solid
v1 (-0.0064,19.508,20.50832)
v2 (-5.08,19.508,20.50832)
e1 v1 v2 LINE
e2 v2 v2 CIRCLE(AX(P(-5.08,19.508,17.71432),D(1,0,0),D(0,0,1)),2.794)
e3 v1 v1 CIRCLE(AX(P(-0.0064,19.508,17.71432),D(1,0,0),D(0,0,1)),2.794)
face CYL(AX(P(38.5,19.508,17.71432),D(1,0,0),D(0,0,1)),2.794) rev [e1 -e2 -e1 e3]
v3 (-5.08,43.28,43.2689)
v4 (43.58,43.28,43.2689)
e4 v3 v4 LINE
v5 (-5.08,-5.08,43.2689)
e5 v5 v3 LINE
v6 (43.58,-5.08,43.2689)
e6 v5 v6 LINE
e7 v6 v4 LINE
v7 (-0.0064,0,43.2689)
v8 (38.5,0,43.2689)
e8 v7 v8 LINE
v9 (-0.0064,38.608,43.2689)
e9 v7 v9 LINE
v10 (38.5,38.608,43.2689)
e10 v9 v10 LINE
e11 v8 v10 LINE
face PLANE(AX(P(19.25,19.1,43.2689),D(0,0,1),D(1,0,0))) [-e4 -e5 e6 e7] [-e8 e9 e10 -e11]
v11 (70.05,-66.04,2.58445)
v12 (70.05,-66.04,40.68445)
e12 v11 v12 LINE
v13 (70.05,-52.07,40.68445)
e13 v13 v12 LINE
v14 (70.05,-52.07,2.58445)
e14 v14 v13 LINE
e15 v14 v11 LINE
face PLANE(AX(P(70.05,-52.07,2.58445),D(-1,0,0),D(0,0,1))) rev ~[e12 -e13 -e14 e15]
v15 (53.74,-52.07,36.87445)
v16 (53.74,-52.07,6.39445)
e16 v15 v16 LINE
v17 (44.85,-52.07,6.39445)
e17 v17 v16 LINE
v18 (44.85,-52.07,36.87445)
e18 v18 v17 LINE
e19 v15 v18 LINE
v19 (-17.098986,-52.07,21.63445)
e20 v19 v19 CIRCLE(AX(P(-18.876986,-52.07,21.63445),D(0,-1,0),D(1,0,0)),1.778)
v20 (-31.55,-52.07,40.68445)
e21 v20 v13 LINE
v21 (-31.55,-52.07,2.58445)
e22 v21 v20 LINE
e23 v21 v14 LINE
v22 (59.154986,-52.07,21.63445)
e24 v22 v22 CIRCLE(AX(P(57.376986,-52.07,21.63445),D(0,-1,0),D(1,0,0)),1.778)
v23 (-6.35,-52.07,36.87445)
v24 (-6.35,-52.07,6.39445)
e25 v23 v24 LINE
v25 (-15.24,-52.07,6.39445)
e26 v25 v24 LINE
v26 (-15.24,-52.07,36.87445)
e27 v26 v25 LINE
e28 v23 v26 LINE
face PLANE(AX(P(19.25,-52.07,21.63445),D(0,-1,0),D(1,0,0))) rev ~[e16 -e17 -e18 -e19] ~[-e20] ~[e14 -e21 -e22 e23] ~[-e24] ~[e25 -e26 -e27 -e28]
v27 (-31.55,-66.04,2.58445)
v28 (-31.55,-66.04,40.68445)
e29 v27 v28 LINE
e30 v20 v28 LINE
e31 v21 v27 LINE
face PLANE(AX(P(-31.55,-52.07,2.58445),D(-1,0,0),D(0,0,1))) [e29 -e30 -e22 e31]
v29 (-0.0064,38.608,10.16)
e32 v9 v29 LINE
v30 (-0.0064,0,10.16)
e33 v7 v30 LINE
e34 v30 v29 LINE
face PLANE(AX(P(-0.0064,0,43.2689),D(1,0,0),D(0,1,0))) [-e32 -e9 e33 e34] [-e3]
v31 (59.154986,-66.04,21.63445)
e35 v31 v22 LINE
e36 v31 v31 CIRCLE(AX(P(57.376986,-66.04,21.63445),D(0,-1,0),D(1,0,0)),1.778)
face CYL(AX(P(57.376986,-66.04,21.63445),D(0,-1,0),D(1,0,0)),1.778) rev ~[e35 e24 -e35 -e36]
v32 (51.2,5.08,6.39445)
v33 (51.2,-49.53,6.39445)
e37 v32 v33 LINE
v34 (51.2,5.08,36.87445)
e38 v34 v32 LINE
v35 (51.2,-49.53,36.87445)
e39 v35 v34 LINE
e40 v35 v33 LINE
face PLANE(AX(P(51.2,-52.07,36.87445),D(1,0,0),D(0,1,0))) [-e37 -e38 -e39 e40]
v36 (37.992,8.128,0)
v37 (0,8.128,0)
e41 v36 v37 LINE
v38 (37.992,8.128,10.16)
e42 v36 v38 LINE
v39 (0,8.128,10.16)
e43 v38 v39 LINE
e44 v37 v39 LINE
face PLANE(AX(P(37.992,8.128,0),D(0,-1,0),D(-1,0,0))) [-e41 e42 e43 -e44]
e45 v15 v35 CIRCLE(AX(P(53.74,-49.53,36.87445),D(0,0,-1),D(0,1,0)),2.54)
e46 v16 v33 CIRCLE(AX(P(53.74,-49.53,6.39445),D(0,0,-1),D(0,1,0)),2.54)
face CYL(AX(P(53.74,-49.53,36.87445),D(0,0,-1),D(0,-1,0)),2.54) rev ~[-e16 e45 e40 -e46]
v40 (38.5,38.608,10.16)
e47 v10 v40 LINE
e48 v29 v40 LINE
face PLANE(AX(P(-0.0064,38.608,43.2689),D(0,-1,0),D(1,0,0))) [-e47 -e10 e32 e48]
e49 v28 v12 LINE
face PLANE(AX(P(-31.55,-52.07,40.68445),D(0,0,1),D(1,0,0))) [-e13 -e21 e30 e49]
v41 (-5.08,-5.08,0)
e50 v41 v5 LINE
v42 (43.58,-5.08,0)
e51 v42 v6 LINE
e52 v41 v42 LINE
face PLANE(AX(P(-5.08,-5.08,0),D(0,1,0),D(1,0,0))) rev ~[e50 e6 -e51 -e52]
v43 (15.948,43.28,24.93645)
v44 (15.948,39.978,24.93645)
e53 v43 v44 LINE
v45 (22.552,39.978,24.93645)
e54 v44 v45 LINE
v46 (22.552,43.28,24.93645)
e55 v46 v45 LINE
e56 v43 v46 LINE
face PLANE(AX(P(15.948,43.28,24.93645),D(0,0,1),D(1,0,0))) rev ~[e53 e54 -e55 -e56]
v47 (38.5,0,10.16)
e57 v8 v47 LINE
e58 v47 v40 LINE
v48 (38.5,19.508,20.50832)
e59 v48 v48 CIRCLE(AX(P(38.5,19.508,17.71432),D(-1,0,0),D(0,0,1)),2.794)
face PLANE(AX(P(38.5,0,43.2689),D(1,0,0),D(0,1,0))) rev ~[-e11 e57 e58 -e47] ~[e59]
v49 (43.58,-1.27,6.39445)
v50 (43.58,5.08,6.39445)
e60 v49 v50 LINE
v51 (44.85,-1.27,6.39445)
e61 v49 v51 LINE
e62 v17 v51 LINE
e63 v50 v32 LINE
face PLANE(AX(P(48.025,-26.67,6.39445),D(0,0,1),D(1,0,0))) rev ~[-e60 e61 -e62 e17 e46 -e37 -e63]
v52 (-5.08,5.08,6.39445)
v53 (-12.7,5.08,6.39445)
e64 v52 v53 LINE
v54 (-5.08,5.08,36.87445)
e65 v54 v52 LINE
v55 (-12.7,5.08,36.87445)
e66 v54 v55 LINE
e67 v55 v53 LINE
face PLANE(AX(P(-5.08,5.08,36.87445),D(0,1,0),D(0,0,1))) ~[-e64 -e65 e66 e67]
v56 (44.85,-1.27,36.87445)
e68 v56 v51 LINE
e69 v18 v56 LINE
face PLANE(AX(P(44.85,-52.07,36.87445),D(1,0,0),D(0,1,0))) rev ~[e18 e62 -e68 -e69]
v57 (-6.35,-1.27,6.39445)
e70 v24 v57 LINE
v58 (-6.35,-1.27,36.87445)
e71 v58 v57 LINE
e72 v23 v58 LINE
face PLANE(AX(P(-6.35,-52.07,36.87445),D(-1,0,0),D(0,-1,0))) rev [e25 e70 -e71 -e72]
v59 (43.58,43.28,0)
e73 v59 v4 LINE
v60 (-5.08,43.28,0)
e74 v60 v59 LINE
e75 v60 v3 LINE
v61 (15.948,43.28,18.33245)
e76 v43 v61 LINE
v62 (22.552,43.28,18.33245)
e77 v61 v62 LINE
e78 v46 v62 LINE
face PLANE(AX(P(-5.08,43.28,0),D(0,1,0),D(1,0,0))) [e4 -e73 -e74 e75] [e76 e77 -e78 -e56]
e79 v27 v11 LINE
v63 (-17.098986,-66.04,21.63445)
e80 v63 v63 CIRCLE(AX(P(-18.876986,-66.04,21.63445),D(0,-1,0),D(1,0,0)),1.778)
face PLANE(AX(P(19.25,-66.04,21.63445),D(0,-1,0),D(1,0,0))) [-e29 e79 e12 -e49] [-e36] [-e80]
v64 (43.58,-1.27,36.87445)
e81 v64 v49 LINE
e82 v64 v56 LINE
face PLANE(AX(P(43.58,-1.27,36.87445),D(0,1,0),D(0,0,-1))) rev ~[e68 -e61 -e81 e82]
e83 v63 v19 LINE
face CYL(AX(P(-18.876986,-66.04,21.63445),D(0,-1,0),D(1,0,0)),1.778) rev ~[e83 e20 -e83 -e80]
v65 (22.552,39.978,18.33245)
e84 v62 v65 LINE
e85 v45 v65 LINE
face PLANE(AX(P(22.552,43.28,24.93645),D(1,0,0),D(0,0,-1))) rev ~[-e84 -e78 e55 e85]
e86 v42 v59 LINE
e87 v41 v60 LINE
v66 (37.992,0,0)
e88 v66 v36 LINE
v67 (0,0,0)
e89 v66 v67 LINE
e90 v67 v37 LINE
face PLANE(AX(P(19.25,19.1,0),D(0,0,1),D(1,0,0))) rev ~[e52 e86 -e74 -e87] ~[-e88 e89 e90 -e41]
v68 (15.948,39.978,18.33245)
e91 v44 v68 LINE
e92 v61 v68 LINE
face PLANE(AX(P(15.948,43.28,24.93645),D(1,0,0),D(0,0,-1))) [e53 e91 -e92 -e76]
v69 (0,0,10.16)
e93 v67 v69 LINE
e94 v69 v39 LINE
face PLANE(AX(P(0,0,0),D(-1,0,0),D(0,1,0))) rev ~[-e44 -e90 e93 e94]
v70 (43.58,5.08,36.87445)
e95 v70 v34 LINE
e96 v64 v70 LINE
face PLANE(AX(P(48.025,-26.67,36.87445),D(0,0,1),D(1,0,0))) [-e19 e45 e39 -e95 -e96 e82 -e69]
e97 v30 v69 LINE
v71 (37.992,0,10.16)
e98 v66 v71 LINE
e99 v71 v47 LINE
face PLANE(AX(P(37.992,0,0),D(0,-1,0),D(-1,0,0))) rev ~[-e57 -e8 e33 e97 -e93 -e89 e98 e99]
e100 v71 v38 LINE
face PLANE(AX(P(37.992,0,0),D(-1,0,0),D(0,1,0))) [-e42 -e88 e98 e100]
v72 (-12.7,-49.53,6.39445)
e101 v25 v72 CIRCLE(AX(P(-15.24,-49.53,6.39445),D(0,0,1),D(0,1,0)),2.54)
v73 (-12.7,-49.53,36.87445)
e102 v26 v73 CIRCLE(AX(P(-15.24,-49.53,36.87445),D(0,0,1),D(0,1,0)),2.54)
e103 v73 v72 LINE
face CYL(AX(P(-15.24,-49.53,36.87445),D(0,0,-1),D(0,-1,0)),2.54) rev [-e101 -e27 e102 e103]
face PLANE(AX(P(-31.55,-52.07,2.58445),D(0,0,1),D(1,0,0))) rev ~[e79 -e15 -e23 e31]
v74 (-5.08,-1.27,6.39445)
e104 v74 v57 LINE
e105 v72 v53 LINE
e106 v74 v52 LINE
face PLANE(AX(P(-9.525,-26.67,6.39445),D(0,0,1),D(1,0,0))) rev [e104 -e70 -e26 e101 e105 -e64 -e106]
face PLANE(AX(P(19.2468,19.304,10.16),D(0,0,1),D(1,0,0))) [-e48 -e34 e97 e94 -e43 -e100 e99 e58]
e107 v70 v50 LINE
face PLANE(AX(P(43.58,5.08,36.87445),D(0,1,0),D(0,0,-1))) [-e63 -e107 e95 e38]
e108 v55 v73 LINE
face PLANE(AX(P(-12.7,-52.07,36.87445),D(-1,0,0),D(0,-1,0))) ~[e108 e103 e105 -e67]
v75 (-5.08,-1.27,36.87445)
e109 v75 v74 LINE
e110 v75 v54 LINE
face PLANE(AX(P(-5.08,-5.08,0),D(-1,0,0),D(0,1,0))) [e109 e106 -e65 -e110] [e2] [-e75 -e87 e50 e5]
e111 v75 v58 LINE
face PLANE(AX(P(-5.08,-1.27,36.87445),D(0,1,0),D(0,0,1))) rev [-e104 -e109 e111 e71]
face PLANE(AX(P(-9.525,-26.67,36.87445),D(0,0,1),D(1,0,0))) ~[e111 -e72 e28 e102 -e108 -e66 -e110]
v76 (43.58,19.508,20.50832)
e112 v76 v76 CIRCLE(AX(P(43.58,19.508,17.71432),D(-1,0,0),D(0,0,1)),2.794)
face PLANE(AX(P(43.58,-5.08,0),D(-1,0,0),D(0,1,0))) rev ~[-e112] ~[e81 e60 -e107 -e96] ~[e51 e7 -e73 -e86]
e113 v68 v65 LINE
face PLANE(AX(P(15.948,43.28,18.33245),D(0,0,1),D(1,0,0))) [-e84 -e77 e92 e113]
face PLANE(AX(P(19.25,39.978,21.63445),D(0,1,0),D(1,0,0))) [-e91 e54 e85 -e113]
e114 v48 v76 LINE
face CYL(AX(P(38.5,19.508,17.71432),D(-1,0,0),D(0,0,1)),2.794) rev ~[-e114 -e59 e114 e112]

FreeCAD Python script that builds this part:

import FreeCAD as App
import Part
import Sketcher
Q = App.Units.Quantity


def edges_at(feature, points):
    """Names of the edges that pass closest to the given points."""
    edges = feature.Shape.Edges
    near = lambda p: min(range(len(edges)), key=lambda i: edges[i].distToShape(Part.Vertex(*p))[0])
    return sorted({f"Edge{near(p) + 1}" for p in points})

doc = App.newDocument("Part")
body = doc.addObject("PartDesign::Body", "Body")

# Sketch on XY plane
sketch1 = body.newObject("Sketcher::SketchObject", "Sketch")
sketch1.AttachmentSupport = (doc.getObject("XY_Plane"), [""])
sketch1.MapMode = "FlatFace"
sketch1.addGeometry([
    Part.LineSegment(App.Vector(-5, 43, 0), App.Vector(-5, -5, 0)),
    Part.LineSegment(App.Vector(-5, -5, 0), App.Vector(44, -5, 0)),
    Part.LineSegment(App.Vector(44, -5, 0), App.Vector(44, 43, 0)),
    Part.LineSegment(App.Vector(44, 43, 0), App.Vector(-5, 43, 0)),
], False)
sketch1.addConstraint([
    Sketcher.Constraint("Coincident", 0, 2, 1, 1),
    Sketcher.Constraint("Coincident", 1, 2, 2, 1),
    Sketcher.Constraint("Coincident", 2, 2, 3, 1),
    Sketcher.Constraint("Coincident", 3, 2, 0, 1),
    Sketcher.Constraint("Vertical", 0),
    Sketcher.Constraint("Horizontal", 1),
    Sketcher.Constraint("Vertical", 2),
    Sketcher.Constraint("Horizontal", 3),
    Sketcher.Constraint("DistanceX", 0, 2, -1, 1, Q("0.2 in")),
    Sketcher.Constraint("DistanceY", 0, 2, -1, 1, Q("0.2 in")),
    Sketcher.Constraint("DistanceX", 1, 1, 1, 2, 48.66),
    Sketcher.Constraint("DistanceY", 0, 2, 0, 1, 48.36),
])
pad1 = body.newObject("PartDesign::Pad", "Pad")
pad1.Profile = sketch1
pad1.Length = Q("1.7035 in")

# Sketch on XY plane
sketch2 = body.newObject("Sketcher::SketchObject", "Sketch001")
sketch2.AttachmentSupport = (doc.getObject("XY_Plane"), [""])
sketch2.MapMode = "FlatFace"
sketch2.addGeometry([
    Part.LineSegment(App.Vector(38, 8, 0), App.Vector(38, 0, 0)),
    Part.LineSegment(App.Vector(38, 0, 0), App.Vector(0, 0, 0)),
    Part.LineSegment(App.Vector(0, 0, 0), App.Vector(0, 8, 0)),
    Part.LineSegment(App.Vector(0, 8, 0), App.Vector(38, 8, 0)),
], False)
sketch2.addConstraint([
    Sketcher.Constraint("Coincident", 0, 2, 1, 1),
    Sketcher.Constraint("Coincident", 1, 2, 2, 1),
    Sketcher.Constraint("Coincident", 2, 2, 3, 1),
    Sketcher.Constraint("Coincident", 3, 2, 0, 1),
    Sketcher.Constraint("Vertical", 0),
    Sketcher.Constraint("Horizontal", 1),
    Sketcher.Constraint("Vertical", 2),
    Sketcher.Constraint("Horizontal", 3),
    Sketcher.Constraint("Coincident", 1, 2, -1, 1),
    Sketcher.Constraint("DistanceY", 0, 2, 0, 1, Q("0.32 in")),
    Sketcher.Constraint("DistanceX", 1, 2, 1, 1, 37.992),
])
pocket1 = body.newObject("PartDesign::Pocket", "Pocket")
pocket1.Profile = sketch2
pocket1.Length = Q("1.5035 in")
pocket1.Reversed = True

# Sketch on XY plane
sketch3 = body.newObject("Sketcher::SketchObject", "Sketch002")
sketch3.AttachmentSupport = (doc.getObject("XY_Plane"), [""])
sketch3.MapMode = "FlatFace"
sketch3.AttachmentOffset = App.Placement(App.Vector(0, 0, 1.7035 * 25.4), App.Rotation())
sketch3.addGeometry([
    Part.LineSegment(App.Vector(0, 39, 0), App.Vector(0, 0, 0)),
    Part.LineSegment(App.Vector(0, 0, 0), App.Vector(38, 0, 0)),
    Part.LineSegment(App.Vector(38, 0, 0), App.Vector(38, 39, 0)),
    Part.LineSegment(App.Vector(38, 39, 0), App.Vector(0, 39, 0)),
], False)
sketch3.addConstraint([
    Sketcher.Constraint("Coincident", 0, 2, 1, 1),
    Sketcher.Constraint("Coincident", 1, 2, 2, 1),
    Sketcher.Constraint("Coincident", 2, 2, 3, 1),
    Sketcher.Constraint("Coincident", 3, 2, 0, 1),
    Sketcher.Constraint("Vertical", 0),
    Sketcher.Constraint("Horizontal", 1),
    Sketcher.Constraint("Vertical", 2),
    Sketcher.Constraint("Horizontal", 3),
    Sketcher.Constraint("PointOnObject", 0, 2, -1),
    Sketcher.Constraint("DistanceY", 0, 2, 0, 1, Q("1.52 in")),
    Sketcher.Constraint("DistanceX", 1, 1, 1, 2, Q("1.516 in")),
    Sketcher.Constraint("DistanceX", 0, 2, -1, 1, 0.0064),
])
pocket2 = body.newObject("PartDesign::Pocket", "Pocket001")
pocket2.Profile = sketch3
pocket2.Length = Q("1.3035 in")

# Sketch on YZ plane
sketch4 = body.newObject("Sketcher::SketchObject", "Sketch003")
sketch4.AttachmentSupport = (doc.getObject("YZ_Plane"), [""])
sketch4.MapMode = "FlatFace"
sketch4.AttachmentOffset = App.Placement(App.Vector(0, 0, 38.5), App.Rotation())
sketch4.addGeometry(Part.Circle(App.Vector(19.5, 17.7, 0), App.Vector(0, 0, 1), 2.8), False)
sketch4.addConstraint([
    Sketcher.Constraint("Diameter", 0, Q("0.22 in")),
    Sketcher.Constraint("DistanceX", -1, 1, 0, 3, 19.508),
    Sketcher.Constraint("DistanceY", -1, 1, 0, 3, 17.71432),
])
pocket3 = body.newObject("PartDesign::Pocket", "Pocket002")
pocket3.Profile = sketch4
pocket3.Type = "ThroughAll"
pocket3.Midplane = True

# Sketch on YZ plane
sketch5 = body.newObject("Sketcher::SketchObject", "Sketch004")
sketch5.AttachmentSupport = (doc.getObject("YZ_Plane"), [""])
sketch5.MapMode = "FlatFace"
sketch5.AttachmentOffset = App.Placement(App.Vector(0, 0, 43.58), App.Rotation())
sketch5.addGeometry([
    Part.LineSegment(App.Vector(5, 37, 0), App.Vector(-1, 37, 0)),
    Part.LineSegment(App.Vector(-1, 37, 0), App.Vector(-1, 6, 0)),
    Part.LineSegment(App.Vector(-1, 6, 0), App.Vector(5, 6, 0)),
    Part.LineSegment(App.Vector(5, 6, 0), App.Vector(5, 37, 0)),
], False)
sketch5.addConstraint([
    Sketcher.Constraint("Coincident", 0, 2, 1, 1),
    Sketcher.Constraint("Coincident", 1, 2, 2, 1),
    Sketcher.Constraint("Coincident", 2, 2, 3, 1),
    Sketcher.Constraint("Coincident", 3, 2, 0, 1),
    Sketcher.Constraint("Horizontal", 0),
    Sketcher.Constraint("Vertical", 1),
    Sketcher.Constraint("Horizontal", 2),
    Sketcher.Constraint("Vertical", 3),
    Sketcher.Constraint("DistanceY", 1, 2, 1, 1, Q("1.2 in")),
    Sketcher.Constraint("DistanceX", 0, 2, 0, 1, Q("0.25 in")),
    Sketcher.Constraint("DistanceX", -1, 1, 2, 2, Q("0.2 in")),
    Sketcher.Constraint("DistanceY", -1, 1, 0, 2, 36.87445),
])
pad2 = body.newObject("PartDesign::Pad", "Pad001")
pad2.Profile = sketch5
pad2.Length = Q("0.3 in")

# Sketch on XY plane
sketch6 = body.newObject("Sketcher::SketchObject", "Sketch005")
sketch6.AttachmentSupport = (doc.getObject("XY_Plane"), [""])
sketch6.MapMode = "FlatFace"
sketch6.AttachmentOffset = App.Placement(App.Vector(0, 0, 36.87445), App.Rotation())
sketch6.addGeometry([
    Part.LineSegment(App.Vector(45, -1, 0), App.Vector(45, -52, 0)),
    Part.LineSegment(App.Vector(45, -52, 0), App.Vector(51, -52, 0)),
    Part.LineSegment(App.Vector(51, -52, 0), App.Vector(51, -1, 0)),
    Part.LineSegment(App.Vector(51, -1, 0), App.Vector(45, -1, 0)),
], False)
sketch6.addConstraint([
    Sketcher.Constraint("Coincident", 0, 2, 1, 1),
    Sketcher.Constraint("Coincident", 1, 2, 2, 1),
    Sketcher.Constraint("Coincident", 2, 2, 3, 1),
    Sketcher.Constraint("Coincident", 3, 2, 0, 1),
    Sketcher.Constraint("Vertical", 0),
    Sketcher.Constraint("Horizontal", 1),
    Sketcher.Constraint("Vertical", 2),
    Sketcher.Constraint("Horizontal", 3),
    Sketcher.Constraint("DistanceY", 0, 2, 0, 1, Q("2 in")),
    Sketcher.Constraint("DistanceX", 1, 1, 1, 2, Q("0.25 in")),
    Sketcher.Constraint("DistanceY", 0, 2, -1, 1, Q("2.05 in")),
    Sketcher.Constraint("DistanceX", -1, 1, 0, 2, 44.85),
])
pad3 = body.newObject("PartDesign::Pad", "Pad002")
pad3.Profile = sketch6
pad3.Length = Q("1.2 in")
pad3.Reversed = True
doc.recompute()

datumplane = body.newObject("PartDesign::Plane", "DatumPlane")
datumplane.AttachmentSupport = (doc.getObject("YZ_Plane"), [""])
datumplane.MapMode = "FlatFace"
datumplane.AttachmentOffset = App.Placement(App.Vector(0, 0, 19.25), App.Rotation())
mirrored = body.newObject("PartDesign::Mirrored", "Mirrored")
mirrored.Originals = [pad2, pad3]
mirrored.MirrorPlane = (datumplane, [""])
body.Tip = mirrored

# Sketch on XZ plane
sketch7 = body.newObject("Sketcher::SketchObject", "Sketch006")
sketch7.AttachmentSupport = (doc.getObject("XZ_Plane"), [""])
sketch7.MapMode = "FlatFace"
sketch7.AttachmentOffset = App.Placement(App.Vector(0, 0, 2.05 * 25.4), App.Rotation())
sketch7.addGeometry([
    Part.LineSegment(App.Vector(-32, 41, 0), App.Vector(-32, 3, 0)),
    Part.LineSegment(App.Vector(-32, 3, 0), App.Vector(70, 3, 0)),
    Part.LineSegment(App.Vector(70, 3, 0), App.Vector(70, 41, 0)),
    Part.LineSegment(App.Vector(70, 41, 0), App.Vector(-32, 41, 0)),
], False)
sketch7.addConstraint([
    Sketcher.Constraint("Coincident", 0, 2, 1, 1),
    Sketcher.Constraint("Coincident", 1, 2, 2, 1),
    Sketcher.Constraint("Coincident", 2, 2, 3, 1),
    Sketcher.Constraint("Coincident", 3, 2, 0, 1),
    Sketcher.Constraint("Vertical", 0),
    Sketcher.Constraint("Horizontal", 1),
    Sketcher.Constraint("Vertical", 2),
    Sketcher.Constraint("Horizontal", 3),
    Sketcher.Constraint("DistanceX", 1, 1, 1, 2, Q("4 in")),
    Sketcher.Constraint("DistanceY", 0, 2, 0, 1, Q("1.5 in")),
    Sketcher.Constraint("DistanceX", 0, 2, -1, 1, 31.55),
    Sketcher.Constraint("DistanceY", -1, 1, 0, 2, 2.58445),
])
pad4 = body.newObject("PartDesign::Pad", "Pad003")
pad4.Profile = sketch7
pad4.Length = Q("0.55 in")

# Sketch on XZ plane
sketch8 = body.newObject("Sketcher::SketchObject", "Sketch007")
sketch8.AttachmentSupport = (doc.getObject("XZ_Plane"), [""])
sketch8.MapMode = "FlatFace"
sketch8.AttachmentOffset = App.Placement(App.Vector(0, 0, 2.6 * 25.4), App.Rotation())
sketch8.addGeometry([
    Part.Circle(App.Vector(57.4, 21.6, 0), App.Vector(0, 0, 1), 1.8),
    Part.Circle(App.Vector(-18.9, 21.6, 0), App.Vector(0, 0, 1), 1.8),
], False)
sketch8.addConstraint([
    Sketcher.Constraint("Equal", 0, 1),
    Sketcher.Constraint("Horizontal", 0, 3, 1, 3),
    Sketcher.Constraint("Diameter", 0, Q("0.14 in")),
    Sketcher.Constraint("DistanceY", -1, 1, 0, 3, 21.63445),
    Sketcher.Constraint("DistanceX", 1, 3, 0, 3, 76.253971),
    Sketcher.Constraint("DistanceX", -1, 1, 0, 3, 57.376986),
])
pocket4 = body.newObject("PartDesign::Pocket", "Pocket003")
pocket4.Profile = sketch8
pocket4.Length = Q("0.55 in")
doc.recompute()

fillet = body.newObject("PartDesign::Fillet", "Fillet")
fillet.Base = (pocket4, edges_at(pocket4, [(-12.7, -52.07, 21.634), (51.2, -52.07, 21.634)]))
fillet.Radius = Q("0.1 in")

# Sketch on XZ plane
sketch9 = body.newObject("Sketcher::SketchObject", "Sketch008")
sketch9.AttachmentSupport = (doc.getObject("XZ_Plane"), [""])
sketch9.MapMode = "FlatFace"
sketch9.AttachmentOffset = App.Placement(App.Vector(0, 0, -43.28), App.Rotation())
sketch9.addGeometry([
    Part.LineSegment(App.Vector(16, 18, 0), App.Vector(16, 25, 0)),
    Part.LineSegment(App.Vector(16, 25, 0), App.Vector(23, 25, 0)),
    Part.LineSegment(App.Vector(23, 25, 0), App.Vector(23, 18, 0)),
    Part.LineSegment(App.Vector(23, 18, 0), App.Vector(16, 18, 0)),
], False)
sketch9.addConstraint([
    Sketcher.Constraint("Coincident", 0, 2, 1, 1),
    Sketcher.Constraint("Coincident", 1, 2, 2, 1),
    Sketcher.Constraint("Coincident", 2, 2, 3, 1),
    Sketcher.Constraint("Coincident", 3, 2, 0, 1),
    Sketcher.Constraint("Vertical", 0),
    Sketcher.Constraint("Horizontal", 1),
    Sketcher.Constraint("Vertical", 2),
    Sketcher.Constraint("Horizontal", 3),
    Sketcher.Constraint("Equal", 3, 0),
    Sketcher.Constraint("DistanceX", 1, 1, 1, 2, Q("0.26 in")),
    Sketcher.Constraint("DistanceX", -1, 1, 0, 2, 15.948),
    Sketcher.Constraint("DistanceY", -1, 1, 0, 2, 24.93645),
])
pocket5 = body.newObject("PartDesign::Pocket", "Pocket004")
pocket5.Profile = sketch9
pocket5.Length = Q("0.13 in")
pocket5.Reversed = True

doc.recompute()
